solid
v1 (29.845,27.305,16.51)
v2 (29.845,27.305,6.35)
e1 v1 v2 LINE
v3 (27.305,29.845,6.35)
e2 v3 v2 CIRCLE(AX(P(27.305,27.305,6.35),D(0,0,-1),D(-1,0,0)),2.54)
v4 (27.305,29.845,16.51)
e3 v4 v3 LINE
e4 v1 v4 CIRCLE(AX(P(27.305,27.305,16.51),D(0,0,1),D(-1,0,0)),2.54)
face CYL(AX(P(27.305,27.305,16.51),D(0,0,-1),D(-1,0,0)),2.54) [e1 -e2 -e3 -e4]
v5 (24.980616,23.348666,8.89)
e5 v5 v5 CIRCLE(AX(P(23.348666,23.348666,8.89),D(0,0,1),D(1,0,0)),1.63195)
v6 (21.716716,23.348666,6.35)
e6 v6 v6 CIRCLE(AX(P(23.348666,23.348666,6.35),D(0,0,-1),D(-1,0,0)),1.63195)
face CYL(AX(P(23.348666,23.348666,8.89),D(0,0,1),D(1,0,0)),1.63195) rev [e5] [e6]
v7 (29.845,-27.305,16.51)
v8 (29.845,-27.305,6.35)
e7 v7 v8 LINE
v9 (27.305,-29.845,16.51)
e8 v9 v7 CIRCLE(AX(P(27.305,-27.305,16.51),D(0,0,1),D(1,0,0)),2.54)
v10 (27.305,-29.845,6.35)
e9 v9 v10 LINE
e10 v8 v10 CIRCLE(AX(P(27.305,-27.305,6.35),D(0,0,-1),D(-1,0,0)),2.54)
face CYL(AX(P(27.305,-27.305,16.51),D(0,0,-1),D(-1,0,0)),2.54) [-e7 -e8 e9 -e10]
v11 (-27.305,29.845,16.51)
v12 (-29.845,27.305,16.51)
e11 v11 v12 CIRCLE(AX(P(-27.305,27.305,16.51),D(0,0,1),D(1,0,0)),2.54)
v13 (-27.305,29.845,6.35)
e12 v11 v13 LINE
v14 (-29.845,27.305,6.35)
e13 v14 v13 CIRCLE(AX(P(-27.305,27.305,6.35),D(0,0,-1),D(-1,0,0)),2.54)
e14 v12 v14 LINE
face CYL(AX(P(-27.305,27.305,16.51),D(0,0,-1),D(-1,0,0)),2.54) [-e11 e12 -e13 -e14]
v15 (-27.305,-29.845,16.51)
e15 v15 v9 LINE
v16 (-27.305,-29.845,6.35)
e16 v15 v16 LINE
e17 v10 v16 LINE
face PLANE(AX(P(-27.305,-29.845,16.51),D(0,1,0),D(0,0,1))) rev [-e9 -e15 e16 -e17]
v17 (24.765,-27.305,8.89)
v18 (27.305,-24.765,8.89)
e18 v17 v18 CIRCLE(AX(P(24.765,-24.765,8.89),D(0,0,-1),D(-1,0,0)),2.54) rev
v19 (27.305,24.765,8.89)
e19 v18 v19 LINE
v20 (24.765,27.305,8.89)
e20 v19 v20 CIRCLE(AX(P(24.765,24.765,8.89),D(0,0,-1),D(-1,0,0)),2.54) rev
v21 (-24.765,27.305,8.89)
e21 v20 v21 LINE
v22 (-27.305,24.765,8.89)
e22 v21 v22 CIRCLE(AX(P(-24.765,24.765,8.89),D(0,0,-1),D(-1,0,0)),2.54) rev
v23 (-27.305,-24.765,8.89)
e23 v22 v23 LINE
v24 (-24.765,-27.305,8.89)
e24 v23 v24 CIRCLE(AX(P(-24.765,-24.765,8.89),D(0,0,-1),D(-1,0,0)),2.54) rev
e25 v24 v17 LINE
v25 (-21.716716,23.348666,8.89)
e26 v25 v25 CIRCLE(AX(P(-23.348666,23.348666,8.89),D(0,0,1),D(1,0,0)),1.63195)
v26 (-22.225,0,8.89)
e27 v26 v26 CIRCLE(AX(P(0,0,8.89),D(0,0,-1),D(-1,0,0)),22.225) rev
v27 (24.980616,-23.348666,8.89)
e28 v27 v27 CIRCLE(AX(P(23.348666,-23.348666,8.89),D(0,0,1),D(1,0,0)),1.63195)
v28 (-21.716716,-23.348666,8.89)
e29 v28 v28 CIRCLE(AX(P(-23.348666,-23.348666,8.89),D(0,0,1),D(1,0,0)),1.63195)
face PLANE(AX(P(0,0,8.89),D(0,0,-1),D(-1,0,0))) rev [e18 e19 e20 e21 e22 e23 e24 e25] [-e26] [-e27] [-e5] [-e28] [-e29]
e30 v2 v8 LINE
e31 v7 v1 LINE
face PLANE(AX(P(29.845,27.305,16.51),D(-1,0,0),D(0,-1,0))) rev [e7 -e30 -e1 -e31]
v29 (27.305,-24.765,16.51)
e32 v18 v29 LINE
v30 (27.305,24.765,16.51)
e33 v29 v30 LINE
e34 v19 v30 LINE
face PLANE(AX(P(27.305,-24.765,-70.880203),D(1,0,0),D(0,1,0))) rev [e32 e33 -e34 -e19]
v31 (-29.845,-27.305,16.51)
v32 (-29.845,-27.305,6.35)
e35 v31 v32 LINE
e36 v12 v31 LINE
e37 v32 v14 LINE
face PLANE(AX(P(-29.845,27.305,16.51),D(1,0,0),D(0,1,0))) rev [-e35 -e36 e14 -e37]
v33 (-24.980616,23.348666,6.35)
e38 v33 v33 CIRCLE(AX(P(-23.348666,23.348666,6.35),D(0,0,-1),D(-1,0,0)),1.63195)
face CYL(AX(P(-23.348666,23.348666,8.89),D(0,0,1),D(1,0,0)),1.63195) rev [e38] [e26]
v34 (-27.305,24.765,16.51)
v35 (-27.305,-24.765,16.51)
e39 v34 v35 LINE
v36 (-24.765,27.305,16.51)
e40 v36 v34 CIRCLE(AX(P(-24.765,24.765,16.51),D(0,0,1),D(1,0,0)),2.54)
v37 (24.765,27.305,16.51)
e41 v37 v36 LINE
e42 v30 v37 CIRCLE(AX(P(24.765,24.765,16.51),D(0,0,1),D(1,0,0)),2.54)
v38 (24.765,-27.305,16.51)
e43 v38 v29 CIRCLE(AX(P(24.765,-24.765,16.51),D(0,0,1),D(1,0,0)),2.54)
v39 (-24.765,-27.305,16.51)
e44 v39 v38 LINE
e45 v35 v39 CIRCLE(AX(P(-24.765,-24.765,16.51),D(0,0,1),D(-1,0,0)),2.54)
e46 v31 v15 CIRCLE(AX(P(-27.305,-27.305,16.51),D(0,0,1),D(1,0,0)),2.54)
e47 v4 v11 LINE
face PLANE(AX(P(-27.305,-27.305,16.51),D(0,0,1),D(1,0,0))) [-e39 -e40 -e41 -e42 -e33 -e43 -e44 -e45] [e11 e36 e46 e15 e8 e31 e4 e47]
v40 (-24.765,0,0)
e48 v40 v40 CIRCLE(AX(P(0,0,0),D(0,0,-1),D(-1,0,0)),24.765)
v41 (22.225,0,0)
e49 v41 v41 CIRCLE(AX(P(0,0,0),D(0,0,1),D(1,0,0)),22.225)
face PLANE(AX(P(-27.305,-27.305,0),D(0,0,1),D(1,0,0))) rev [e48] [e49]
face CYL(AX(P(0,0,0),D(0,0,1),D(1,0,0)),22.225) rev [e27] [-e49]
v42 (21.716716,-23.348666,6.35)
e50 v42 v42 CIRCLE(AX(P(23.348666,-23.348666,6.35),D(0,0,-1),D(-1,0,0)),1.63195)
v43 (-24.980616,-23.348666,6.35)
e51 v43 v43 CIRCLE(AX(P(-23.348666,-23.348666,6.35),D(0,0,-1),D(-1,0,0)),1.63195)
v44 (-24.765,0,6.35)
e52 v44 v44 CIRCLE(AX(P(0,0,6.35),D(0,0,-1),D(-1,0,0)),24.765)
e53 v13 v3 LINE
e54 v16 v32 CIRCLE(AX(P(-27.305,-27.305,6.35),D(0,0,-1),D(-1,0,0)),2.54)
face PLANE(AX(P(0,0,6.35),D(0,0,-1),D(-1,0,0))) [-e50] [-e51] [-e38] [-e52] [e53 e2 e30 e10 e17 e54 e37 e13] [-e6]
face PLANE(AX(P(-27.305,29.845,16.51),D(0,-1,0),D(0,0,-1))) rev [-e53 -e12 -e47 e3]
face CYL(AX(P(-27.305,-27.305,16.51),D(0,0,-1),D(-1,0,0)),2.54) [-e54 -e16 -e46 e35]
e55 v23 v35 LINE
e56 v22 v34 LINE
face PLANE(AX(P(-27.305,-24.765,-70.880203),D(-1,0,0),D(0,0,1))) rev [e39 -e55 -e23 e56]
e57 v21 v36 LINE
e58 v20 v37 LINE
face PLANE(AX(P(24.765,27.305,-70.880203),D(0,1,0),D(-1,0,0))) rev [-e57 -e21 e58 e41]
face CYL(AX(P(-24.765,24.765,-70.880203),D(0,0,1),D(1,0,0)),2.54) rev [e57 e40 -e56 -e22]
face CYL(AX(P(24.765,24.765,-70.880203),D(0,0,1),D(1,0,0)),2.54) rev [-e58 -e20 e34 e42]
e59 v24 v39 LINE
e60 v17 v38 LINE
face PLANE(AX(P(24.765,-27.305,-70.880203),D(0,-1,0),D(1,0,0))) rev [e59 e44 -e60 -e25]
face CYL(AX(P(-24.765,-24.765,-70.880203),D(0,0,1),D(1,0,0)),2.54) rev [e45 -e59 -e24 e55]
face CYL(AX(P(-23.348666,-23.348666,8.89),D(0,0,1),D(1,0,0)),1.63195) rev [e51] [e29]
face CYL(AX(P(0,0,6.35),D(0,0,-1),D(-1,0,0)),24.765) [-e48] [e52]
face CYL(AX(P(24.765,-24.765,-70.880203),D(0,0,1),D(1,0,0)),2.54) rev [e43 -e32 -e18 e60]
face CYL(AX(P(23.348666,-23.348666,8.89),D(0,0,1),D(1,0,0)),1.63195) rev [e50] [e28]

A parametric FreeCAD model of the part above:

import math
import FreeCAD as App
import Part
import Sketcher
from FreeCAD import Vector
Q = App.Units.Quantity


def add_polygon(sketch, points):
    """Adds a closed chain of lines whose ends are joined by coincident constraints."""
    first, n = sketch.GeometryCount, len(points)
    for a, b in zip(points, points[1:] + points[:1]):
        sketch.addGeometry(Part.LineSegment(App.Vector(*a, 0), App.Vector(*b, 0)), False)
    for i in range(n):
        sketch.addConstraint(Sketcher.Constraint("Coincident", first + i, 2, first + (i + 1) % n, 1))

doc = App.newDocument("Part")
body = doc.addObject("PartDesign::Body", "Body")

sketch1 = body.newObject("Sketcher::SketchObject", "Sketch")
sketch1.AttachmentSupport = (doc.getObject("XY_Plane"), [""])
sketch1.MapMode = "FlatFace"
sketch1.addGeometry(Part.LineSegment(Vector(27.3, 29.8, 0), Vector(-27.3, 29.8, 0)), False)
sketch1.addGeometry(Part.ArcOfCircle(Part.Circle(Vector(-27.3, 27.3, 0), Vector(0, 0, 1), 2.5), math.radians(90), math.radians(180)), False)
sketch1.addGeometry(Part.LineSegment(Vector(-29.8, 27.3, 0), Vector(-29.8, -27.3, 0)), False)
sketch1.addGeometry(Part.ArcOfCircle(Part.Circle(Vector(-27.3, -27.3, 0), Vector(0, 0, 1), 2.5), math.radians(-180), math.radians(-90)), False)
sketch1.addGeometry(Part.LineSegment(Vector(-27.3, -29.8, 0), Vector(27.3, -29.8, 0)), False)
sketch1.addGeometry(Part.ArcOfCircle(Part.Circle(Vector(27.3, -27.3, 0), Vector(0, 0, 1), 2.5), math.radians(-90), math.radians(0)), False)
sketch1.addGeometry(Part.LineSegment(Vector(29.8, -27.3, 0), Vector(29.8, 27.3, 0)), False)
sketch1.addGeometry(Part.ArcOfCircle(Part.Circle(Vector(27.3, 27.3, 0), Vector(0, 0, 1), 2.5), math.radians(0), math.radians(90)), False)
sketch1.addConstraint(Sketcher.Constraint("Tangent", 0, 2, 1, 1))
sketch1.addConstraint(Sketcher.Constraint("Tangent", 1, 2, 2, 1))
sketch1.addConstraint(Sketcher.Constraint("Tangent", 2, 2, 3, 1))
sketch1.addConstraint(Sketcher.Constraint("Tangent", 3, 2, 4, 1))
sketch1.addConstraint(Sketcher.Constraint("Tangent", 4, 2, 5, 1))
sketch1.addConstraint(Sketcher.Constraint("Tangent", 5, 2, 6, 1))
sketch1.addConstraint(Sketcher.Constraint("Tangent", 6, 2, 7, 1))
sketch1.addConstraint(Sketcher.Constraint("Tangent", 7, 2, 0, 1))
sketch1.addConstraint(Sketcher.Constraint("Horizontal", 0))
sketch1.addConstraint(Sketcher.Constraint("Vertical", 2))
sketch1.addConstraint(Sketcher.Constraint("Horizontal", 4))
sketch1.addConstraint(Sketcher.Constraint("Vertical", 6))
sketch1.addConstraint(Sketcher.Constraint("Equal", 1, 3))
sketch1.addConstraint(Sketcher.Constraint("Equal", 3, 5))
sketch1.addConstraint(Sketcher.Constraint("Equal", 5, 7))
sketch1.addConstraint(Sketcher.Constraint("Symmetric", 1, 3, 5, 3, -1, 1))
sketch1.addConstraint(Sketcher.Constraint("Equal", 4, 2))
sketch1.addConstraint(Sketcher.Constraint("Radius", 1, Q("0.1 in")))
sketch1.addConstraint(Sketcher.Constraint("DistanceX", 0, 2, 0, 1, Q("2.15 in")))
pad1 = body.newObject("PartDesign::Pad", "Pad")
pad1.Profile = sketch1
pad1.Length = Q("0.65 in")

sketch2 = body.newObject("Sketcher::SketchObject", "Sketch001")
sketch2.AttachmentSupport = (doc.getObject("XY_Plane"), [""])
sketch2.MapMode = "FlatFace"
sketch2.AttachmentOffset = App.Placement(Vector(0, 0, 0.65 * 25.4), App.Rotation())
sketch2.addGeometry(Part.Circle(Vector(0, 0, 0), Vector(0, 0, 1), 22), False)
sketch2.addConstraint(Sketcher.Constraint("Coincident", 0, 3, -1, 1))
sketch2.addConstraint(Sketcher.Constraint("Diameter", 0, Q("1.75 in")))
pocket1 = body.newObject("PartDesign::Pocket", "Pocket")
pocket1.Profile = sketch2
pocket1.Type = "ThroughAll"

sketch3 = body.newObject("Sketcher::SketchObject", "Sketch002")
sketch3.AttachmentSupport = (doc.getObject("XY_Plane"), [""])
sketch3.MapMode = "FlatFace"
add_polygon(sketch3, [(39, 39), (39, -39), (-39, -39), (-39, 39)])
sketch3.addGeometry(Part.Circle(Vector(0, 0, 0), Vector(0, 0, 1), 25), False)
sketch3.addConstraint(Sketcher.Constraint("Vertical", 0))
sketch3.addConstraint(Sketcher.Constraint("Horizontal", 1))
sketch3.addConstraint(Sketcher.Constraint("Vertical", 2))
sketch3.addConstraint(Sketcher.Constraint("Horizontal", 3))
sketch3.addConstraint(Sketcher.Constraint("Coincident", 4, 3, -1, 1))
sketch3.addConstraint(Sketcher.Constraint("Symmetric", 0, 2, 2, 2, -1, 1))
sketch3.addConstraint(Sketcher.Constraint("Equal", 3, 0))
sketch3.addConstraint(Sketcher.Constraint("Diameter", 4, Q("1.95 in")))
sketch3.addConstraint(Sketcher.Constraint("DistanceX", 1, 2, 1, 1, 78.892))
pocket2 = body.newObject("PartDesign::Pocket", "Pocket001")
pocket2.Profile = sketch3
pocket2.Length = Q("0.25 in")
pocket2.Reversed = True

sketch4 = body.newObject("Sketcher::SketchObject", "Sketch003")
sketch4.AttachmentSupport = (doc.getObject("XY_Plane"), [""])
sketch4.MapMode = "FlatFace"
sketch4.AttachmentOffset = App.Placement(Vector(0, 0, 0.65 * 25.4), App.Rotation())
sketch4.addGeometry(Part.LineSegment(Vector(-24.8, -27.3, 0), Vector(24.8, -27.3, 0)), False)
sketch4.addGeometry(Part.ArcOfCircle(Part.Circle(Vector(24.8, -24.8, 0), Vector(0, 0, 1), 2.5), math.radians(-90), math.radians(0)), False)
sketch4.addGeometry(Part.LineSegment(Vector(27.3, -24.8, 0), Vector(27.3, 24.8, 0)), False)
sketch4.addGeometry(Part.ArcOfCircle(Part.Circle(Vector(24.8, 24.8, 0), Vector(0, 0, 1), 2.5), math.radians(0), math.radians(90)), False)
sketch4.addGeometry(Part.LineSegment(Vector(24.8, 27.3, 0), Vector(-24.8, 27.3, 0)), False)
sketch4.addGeometry(Part.ArcOfCircle(Part.Circle(Vector(-24.8, 24.8, 0), Vector(0, 0, 1), 2.5), math.radians(90), math.radians(180)), False)
sketch4.addGeometry(Part.LineSegment(Vector(-27.3, 24.8, 0), Vector(-27.3, -24.8, 0)), False)
sketch4.addGeometry(Part.ArcOfCircle(Part.Circle(Vector(-24.8, -24.8, 0), Vector(0, 0, 1), 2.5), math.radians(-180), math.radians(-90)), False)
sketch4.addConstraint(Sketcher.Constraint("Tangent", 0, 2, 1, 1))
sketch4.addConstraint(Sketcher.Constraint("Tangent", 1, 2, 2, 1))
sketch4.addConstraint(Sketcher.Constraint("Tangent", 2, 2, 3, 1))
sketch4.addConstraint(Sketcher.Constraint("Tangent", 3, 2, 4, 1))
sketch4.addConstraint(Sketcher.Constraint("Tangent", 4, 2, 5, 1))
sketch4.addConstraint(Sketcher.Constraint("Tangent", 5, 2, 6, 1))
sketch4.addConstraint(Sketcher.Constraint("Tangent", 6, 2, 7, 1))
sketch4.addConstraint(Sketcher.Constraint("Tangent", 7, 2, 0, 1))
sketch4.addConstraint(Sketcher.Constraint("Horizontal", 0))
sketch4.addConstraint(Sketcher.Constraint("Vertical", 2))
sketch4.addConstraint(Sketcher.Constraint("Horizontal", 4))
sketch4.addConstraint(Sketcher.Constraint("Vertical", 6))
sketch4.addConstraint(Sketcher.Constraint("Equal", 1, 3))
sketch4.addConstraint(Sketcher.Constraint("Equal", 3, 5))
sketch4.addConstraint(Sketcher.Constraint("Equal", 5, 7))
sketch4.addConstraint(Sketcher.Constraint("Symmetric", 1, 3, 5, 3, -1, 1))
sketch4.addConstraint(Sketcher.Constraint("Equal", 4, 2))
sketch4.addConstraint(Sketcher.Constraint("Radius", 1, Q("0.1 in")))
sketch4.addConstraint(Sketcher.Constraint("DistanceX", 0, 1, 0, 2, Q("1.95 in")))
pocket3 = body.newObject("PartDesign::Pocket", "Pocket002")
pocket3.Profile = sketch4
pocket3.Length = Q("0.3 in")

sketch5 = body.newObject("Sketcher::SketchObject", "Sketch004")
sketch5.AttachmentSupport = (doc.getObject("YZ_Plane"), [""])
sketch5.MapMode = "FlatFace"
sketch5.AttachmentOffset = App.Placement(Vector(0, 0, -23.348666), App.Rotation())
add_polygon(sketch5, [(23.3, 0.3), (23.3, 8.9), (21.7, 8.9), (21.7, 1.3)])
sketch5.addGeometry(Part.LineSegment(Vector(23.3, 8.9, 0), Vector(23.3, 0.3, 0)), True)
sketch5.addConstraint(Sketcher.Constraint("Vertical", 0))
sketch5.addConstraint(Sketcher.Constraint("Horizontal", 1))
sketch5.addConstraint(Sketcher.Constraint("Vertical", 2))
sketch5.addConstraint(Sketcher.Constraint("Vertical", 4))
sketch5.addConstraint(Sketcher.Constraint("Coincident", 4, 1, 0, 2))
sketch5.addConstraint(Sketcher.Constraint("Equal", 0, 4))
sketch5.addConstraint(Sketcher.Constraint("Angle", 3, Q("-31 deg")))
sketch5.addConstraint(Sketcher.Constraint("DistanceY", 2, 2, 2, 1, Q("0.299 in")))
sketch5.addConstraint(Sketcher.Constraint("DistanceY", -1, 1, 0, 2, Q("0.35 in")))
sketch5.addConstraint(Sketcher.Constraint("DistanceX", 1, 2, 1, 1, 1.63195))
sketch5.addConstraint(Sketcher.Constraint("DistanceX", -1, 1, 0, 2, 23.348666))
groove = body.newObject("PartDesign::Groove", "Groove")
groove.Profile = sketch5
groove.ReferenceAxis = (sketch5, ["Axis0"])
groove.Angle = 360
doc.recompute()

polarpattern = body.newObject("PartDesign::PolarPattern", "PolarPattern")
polarpattern.Originals = [groove]
polarpattern.Axis = (doc.getObject("Z_Axis"), [""])
polarpattern.Angle = 360
polarpattern.Occurrences = 4
body.Tip = polarpattern

doc.recompute()
